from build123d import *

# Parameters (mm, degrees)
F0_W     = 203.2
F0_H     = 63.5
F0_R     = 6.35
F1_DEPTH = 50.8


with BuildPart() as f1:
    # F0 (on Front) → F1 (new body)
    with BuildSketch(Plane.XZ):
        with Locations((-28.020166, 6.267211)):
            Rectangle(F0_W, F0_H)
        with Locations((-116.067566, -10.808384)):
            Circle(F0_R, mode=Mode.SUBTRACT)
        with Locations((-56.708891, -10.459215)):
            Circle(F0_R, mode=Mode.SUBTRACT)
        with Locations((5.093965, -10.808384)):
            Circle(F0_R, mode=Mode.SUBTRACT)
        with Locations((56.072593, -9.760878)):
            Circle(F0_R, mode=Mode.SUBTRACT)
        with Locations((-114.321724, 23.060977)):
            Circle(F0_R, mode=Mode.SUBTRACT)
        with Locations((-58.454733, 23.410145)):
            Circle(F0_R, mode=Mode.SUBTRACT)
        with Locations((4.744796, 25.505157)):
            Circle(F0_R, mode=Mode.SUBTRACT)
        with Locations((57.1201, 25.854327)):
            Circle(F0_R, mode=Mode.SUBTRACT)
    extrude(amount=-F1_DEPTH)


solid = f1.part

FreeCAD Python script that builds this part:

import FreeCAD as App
import Part
import Sketcher

V = App.Vector
Q = App.Units.Quantity


def add_polygon(sketch, points):
    """Adds a closed chain of lines whose ends are joined by coincident constraints."""
    first, n = sketch.GeometryCount, len(points)
    for a, b in zip(points, points[1:] + points[:1]):
        sketch.addGeometry(Part.LineSegment(App.Vector(*a, 0), App.Vector(*b, 0)), False)
    for i in range(n):
        sketch.addConstraint(Sketcher.Constraint("Coincident", first + i, 2, first + (i + 1) % n, 1))

doc = App.newDocument("Part")
body = doc.addObject("PartDesign::Body", "Body")

# Sketch on XZ plane
sketch1 = doc.addObject("Sketcher::SketchObject", "Sketch")
body.addObject(sketch1)
sketch1.AttachmentSupport = (doc.XZ_Plane, [""])
sketch1.MapMode = "FlatFace"
add_polygon(sketch1, [(-130, 38), (-130, -25), (74, -25), (74, 38)])  # lines 0-3
sketch1.addGeometry(Part.Circle(V(-116, -11, 0), V(0, 0, 1), 6), False)  # 4
sketch1.addGeometry(Part.Circle(V(-57, -10, 0), V(0, 0, 1), 6), False)  # 5
sketch1.addGeometry(Part.Circle(V(5, -11, 0), V(0, 0, 1), 6), False)  # 6
sketch1.addGeometry(Part.Circle(V(56, -10, 0), V(0, 0, 1), 6), False)  # 7
sketch1.addGeometry(Part.Circle(V(-114, 23, 0), V(0, 0, 1), 6), False)  # 8
sketch1.addGeometry(Part.Circle(V(-58, 23, 0), V(0, 0, 1), 6), False)  # 9
sketch1.addGeometry(Part.Circle(V(5, 26, 0), V(0, 0, 1), 6), False)  # 10
sketch1.addGeometry(Part.Circle(V(57, 26, 0), V(0, 0, 1), 6), False)  # 11
sketch1.addConstraint([
    Sketcher.Constraint("Vertical", 0),
    Sketcher.Constraint("Horizontal", 1),
    Sketcher.Constraint("Vertical", 2),
    Sketcher.Constraint("Horizontal", 3),
    Sketcher.Constraint("Equal", 4, 5),
    Sketcher.Constraint("Equal", 5, 6),
    Sketcher.Constraint("Equal", 6, 7),
    Sketcher.Constraint("Equal", 7, 8),
    Sketcher.Constraint("Equal", 8, 9),
    Sketcher.Constraint("Equal", 9, 10),
    Sketcher.Constraint("Equal", 10, 11),
    Sketcher.Constraint("Horizontal", 4, 3, 6, 3),
    Sketcher.Constraint("Diameter", 4, Q("0.5 in")),
    Sketcher.Constraint("DistanceX", 1, 1, 1, 2, Q("8 in")),
    Sketcher.Constraint("DistanceY", 0, 2, 0, 1, Q("2.5 in")),
    Sketcher.Constraint("DistanceX", -1, 1, 11, 3, 57.1201),
    Sketcher.Constraint("DistanceX", 0, 2, 4, 3, 13.5526),
    Sketcher.Constraint("DistanceX", 5, 3, -1, 1, 56.708891),
    Sketcher.Constraint("DistanceY", 0, 2, -1, 1, 25.482789),
    Sketcher.Constraint("DistanceY", 4, 3, 5, 3, 0.349169),
    Sketcher.Constraint("DistanceX", 4, 3, 6, 3, 121.161531),
    Sketcher.Constraint("DistanceX", 4, 3, 7, 3, 172.140159),
    Sketcher.Constraint("DistanceX", 4, 3, 8, 3, 1.745842),
    Sketcher.Constraint("DistanceY", 4, 3, 8, 3, 33.869361),
    Sketcher.Constraint("DistanceX", 9, 3, 5, 3, 1.745842),
    Sketcher.Constraint("DistanceY", 5, 3, 9, 3, 33.86936),
    Sketcher.Constraint("DistanceX", 8, 3, 9, 3, 55.866991),
    Sketcher.Constraint("DistanceX", 10, 3, 6, 3, 0.349169),
    Sketcher.Constraint("DistanceY", 6, 3, 10, 3, 36.313541),
    Sketcher.Constraint("DistanceY", 10, 3, 11, 3, 0.34917),
    Sketcher.Constraint("DistanceY", 1, 2, 7, 3, 15.721911),
    Sketcher.Constraint("DistanceY", 4, 3, -1, 1, 10.808384),
])
pad1 = doc.addObject("PartDesign::Pad", "Pad")
body.addObject(pad1)
pad1.Profile = sketch1
pad1.Length = Q("2 in")
pad1.Reversed = True

doc.recompute()
